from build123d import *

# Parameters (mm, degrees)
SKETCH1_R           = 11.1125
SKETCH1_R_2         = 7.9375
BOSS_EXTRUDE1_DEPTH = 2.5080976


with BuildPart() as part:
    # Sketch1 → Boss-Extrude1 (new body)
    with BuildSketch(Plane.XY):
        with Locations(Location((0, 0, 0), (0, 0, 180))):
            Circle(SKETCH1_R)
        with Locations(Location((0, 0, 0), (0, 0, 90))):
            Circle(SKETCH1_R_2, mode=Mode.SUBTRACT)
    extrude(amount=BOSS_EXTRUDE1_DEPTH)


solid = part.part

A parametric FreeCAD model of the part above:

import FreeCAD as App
import Part
import Sketcher
from FreeCAD import Vector
Q = App.Units.Quantity

doc = App.newDocument("Part")
body = doc.addObject("PartDesign::Body", "Body")

# Sketch on XY plane
sketch1 = doc.addObject("Sketcher::SketchObject", "Sketch")
body.addObject(sketch1)
sketch1.AttachmentSupport = (doc.XY_Plane, [""])
sketch1.MapMode = "FlatFace"
sketch1.addGeometry([
    Part.Circle(Vector(0, 0, 0), Vector(0, 0, 1), 11.1125),
    Part.Circle(Vector(0, 0, 0), Vector(0, 0, 1), 7.9375),
], False)
sketch1.addConstraint([
    Sketcher.Constraint("Coincident", 0, 3, -1, 1),
    Sketcher.Constraint("Coincident", 1, 3, -1, 1),
    Sketcher.Constraint("Diameter", 0, Q("0.875 in")),
    Sketcher.Constraint("Diameter", 1, Q("0.625 in")),
])
pad1 = doc.addObject("PartDesign::Pad", "Pad")
body.addObject(pad1)
pad1.Profile = sketch1
pad1.Length = 2.508098

doc.recompute()
